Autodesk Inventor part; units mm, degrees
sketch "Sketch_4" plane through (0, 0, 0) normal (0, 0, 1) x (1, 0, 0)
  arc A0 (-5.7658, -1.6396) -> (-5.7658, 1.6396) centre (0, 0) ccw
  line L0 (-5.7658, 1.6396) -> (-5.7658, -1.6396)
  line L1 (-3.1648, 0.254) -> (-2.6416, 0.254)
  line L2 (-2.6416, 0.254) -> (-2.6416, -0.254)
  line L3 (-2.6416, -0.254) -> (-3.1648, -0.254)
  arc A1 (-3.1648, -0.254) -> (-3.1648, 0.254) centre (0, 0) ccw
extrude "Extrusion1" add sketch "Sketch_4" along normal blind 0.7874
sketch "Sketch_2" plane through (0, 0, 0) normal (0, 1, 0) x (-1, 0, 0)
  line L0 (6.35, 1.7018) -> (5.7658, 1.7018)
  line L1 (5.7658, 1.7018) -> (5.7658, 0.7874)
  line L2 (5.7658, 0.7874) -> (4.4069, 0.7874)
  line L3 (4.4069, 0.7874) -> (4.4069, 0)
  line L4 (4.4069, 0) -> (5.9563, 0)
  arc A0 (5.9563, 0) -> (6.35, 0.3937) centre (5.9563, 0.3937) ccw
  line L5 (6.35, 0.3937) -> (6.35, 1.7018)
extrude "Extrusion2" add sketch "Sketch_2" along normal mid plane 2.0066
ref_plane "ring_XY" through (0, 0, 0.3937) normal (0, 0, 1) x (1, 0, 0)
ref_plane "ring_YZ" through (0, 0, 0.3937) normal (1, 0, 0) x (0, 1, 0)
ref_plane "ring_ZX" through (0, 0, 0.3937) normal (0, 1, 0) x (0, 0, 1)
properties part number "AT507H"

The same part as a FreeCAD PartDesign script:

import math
import FreeCAD as App
import Part
import Sketcher

V = App.Vector
Q = App.Units.Quantity

doc = App.newDocument("Part")
body = doc.addObject("PartDesign::Body", "Body")

# Sketch on XY plane
sketch1 = body.newObject("Sketcher::SketchObject", "Sketch")
sketch1.AttachmentSupport = (doc.getObject("XY_Plane"), [""])
sketch1.MapMode = "FlatFace"
sketch1.addGeometry(Part.LineSegment(V(-5.7658, 1.6396, 0), V(-5.7658, -1.6396, 0)), False)
sketch1.addGeometry(Part.ArcOfCircle(Part.Circle(V(0, 0, 0), V(0, 0, 1), 5.994392), math.radians(-164.126027), math.radians(164.126027)), False)
sketch1.addGeometry(Part.LineSegment(V(-2.6416, 0.254, 0), V(-3.1648, 0.254, 0)), False)
sketch1.addGeometry(Part.ArcOfCircle(Part.Circle(V(0, 0, 0), V(0, 0, 1), 3.174976), math.radians(-175.4114), math.radians(175.4114)), False)
sketch1.addGeometry(Part.LineSegment(V(-3.1648, -0.254, 0), V(-2.6416, -0.254, 0)), False)
sketch1.addGeometry(Part.LineSegment(V(-2.6416, -0.254, 0), V(-2.6416, 0.254, 0)), False)
sketch1.addConstraint(Sketcher.Constraint("Coincident", 0, 1, 1, 2))
sketch1.addConstraint(Sketcher.Constraint("Coincident", 1, 1, 0, 2))
sketch1.addConstraint(Sketcher.Constraint("Coincident", 2, 2, 3, 2))
sketch1.addConstraint(Sketcher.Constraint("Coincident", 3, 1, 4, 1))
sketch1.addConstraint(Sketcher.Constraint("Coincident", 4, 2, 5, 1))
sketch1.addConstraint(Sketcher.Constraint("Coincident", 5, 2, 2, 1))
sketch1.addConstraint(Sketcher.Constraint("Vertical", 0))
sketch1.addConstraint(Sketcher.Constraint("Horizontal", 2))
sketch1.addConstraint(Sketcher.Constraint("Horizontal", 4))
sketch1.addConstraint(Sketcher.Constraint("Vertical", 5))
sketch1.addConstraint(Sketcher.Constraint("Coincident", 1, 3, -1, 1))
sketch1.addConstraint(Sketcher.Constraint("Coincident", 3, 3, -1, 1))
sketch1.addConstraint(Sketcher.Constraint("Vertical", 2, 2, 3, 1))
sketch1.addConstraint(Sketcher.Constraint("Radius", 1, Q("0.236 in")))
sketch1.addConstraint(Sketcher.Constraint("Radius", 3, Q("0.125 in")))
sketch1.addConstraint(Sketcher.Constraint("DistanceY", 5, 1, 5, 2, Q("0.02 in")))
sketch1.addConstraint(Sketcher.Constraint("DistanceX", 2, 2, 2, 1, Q("0.0206 in")))
sketch1.addConstraint(Sketcher.Constraint("DistanceY", 0, 2, 0, 1, Q("0.1291 in")))
pad1 = body.newObject("PartDesign::Pad", "Pad")
pad1.Profile = sketch1
pad1.Length = Q("0.031 in")

# Sketch on XZ plane
sketch2 = body.newObject("Sketcher::SketchObject", "Sketch001")
sketch2.AttachmentSupport = (doc.getObject("XZ_Plane"), [""])
sketch2.MapMode = "FlatFace"
sketch2.addGeometry(Part.LineSegment(V(-6.35, 0.3937, 0), V(-6.35, 1.7018, 0)), False)
sketch2.addGeometry(Part.LineSegment(V(-6.35, 1.7018, 0), V(-5.7658, 1.7018, 0)), False)
sketch2.addGeometry(Part.LineSegment(V(-5.7658, 1.7018, 0), V(-5.7658, 0.7874, 0)), False)
sketch2.addGeometry(Part.LineSegment(V(-5.7658, 0.7874, 0), V(-4.4069, 0.7874, 0)), False)
sketch2.addGeometry(Part.LineSegment(V(-4.4069, 0.7874, 0), V(-4.4069, 0, 0)), False)
sketch2.addGeometry(Part.LineSegment(V(-4.4069, 0, 0), V(-5.9563, 0, 0)), False)
sketch2.addGeometry(Part.ArcOfCircle(Part.Circle(V(-5.9563, 0.3937, 0), V(0, 0, 1), 0.3937), math.radians(180), math.radians(270)), False)
sketch2.addConstraint(Sketcher.Constraint("Coincident", 0, 2, 1, 1))
sketch2.addConstraint(Sketcher.Constraint("Coincident", 1, 2, 2, 1))
sketch2.addConstraint(Sketcher.Constraint("Coincident", 2, 2, 3, 1))
sketch2.addConstraint(Sketcher.Constraint("Coincident", 3, 2, 4, 1))
sketch2.addConstraint(Sketcher.Constraint("Coincident", 4, 2, 5, 1))
sketch2.addConstraint(Sketcher.Constraint("Tangent", 5, 2, 6, 2))
sketch2.addConstraint(Sketcher.Constraint("Tangent", 6, 1, 0, 1))
sketch2.addConstraint(Sketcher.Constraint("Vertical", 0))
sketch2.addConstraint(Sketcher.Constraint("Horizontal", 1))
sketch2.addConstraint(Sketcher.Constraint("Vertical", 2))
sketch2.addConstraint(Sketcher.Constraint("Horizontal", 3))
sketch2.addConstraint(Sketcher.Constraint("Vertical", 4))
sketch2.addConstraint(Sketcher.Constraint("Horizontal", 5))
sketch2.addConstraint(Sketcher.Constraint("PointOnObject", 4, 2, -1))
sketch2.addConstraint(Sketcher.Constraint("Radius", 6, Q("0.0155 in")))
sketch2.addConstraint(Sketcher.Constraint("DistanceX", 1, 1, 1, 2, Q("0.023 in")))
sketch2.addConstraint(Sketcher.Constraint("DistanceX", 5, 2, 5, 1, Q("0.061 in")))
sketch2.addConstraint(Sketcher.Constraint("DistanceY", 2, 2, 2, 1, Q("0.036 in")))
sketch2.addConstraint(Sketcher.Constraint("DistanceY", 4, 2, 4, 1, Q("0.031 in")))
sketch2.addConstraint(Sketcher.Constraint("DistanceX", 0, 2, -1, 1, Q("0.25 in")))
pad2 = body.newObject("PartDesign::Pad", "Pad001")
pad2.Profile = sketch2
pad2.Length = Q("0.079 in")
pad2.Midplane = True

doc.recompute()
